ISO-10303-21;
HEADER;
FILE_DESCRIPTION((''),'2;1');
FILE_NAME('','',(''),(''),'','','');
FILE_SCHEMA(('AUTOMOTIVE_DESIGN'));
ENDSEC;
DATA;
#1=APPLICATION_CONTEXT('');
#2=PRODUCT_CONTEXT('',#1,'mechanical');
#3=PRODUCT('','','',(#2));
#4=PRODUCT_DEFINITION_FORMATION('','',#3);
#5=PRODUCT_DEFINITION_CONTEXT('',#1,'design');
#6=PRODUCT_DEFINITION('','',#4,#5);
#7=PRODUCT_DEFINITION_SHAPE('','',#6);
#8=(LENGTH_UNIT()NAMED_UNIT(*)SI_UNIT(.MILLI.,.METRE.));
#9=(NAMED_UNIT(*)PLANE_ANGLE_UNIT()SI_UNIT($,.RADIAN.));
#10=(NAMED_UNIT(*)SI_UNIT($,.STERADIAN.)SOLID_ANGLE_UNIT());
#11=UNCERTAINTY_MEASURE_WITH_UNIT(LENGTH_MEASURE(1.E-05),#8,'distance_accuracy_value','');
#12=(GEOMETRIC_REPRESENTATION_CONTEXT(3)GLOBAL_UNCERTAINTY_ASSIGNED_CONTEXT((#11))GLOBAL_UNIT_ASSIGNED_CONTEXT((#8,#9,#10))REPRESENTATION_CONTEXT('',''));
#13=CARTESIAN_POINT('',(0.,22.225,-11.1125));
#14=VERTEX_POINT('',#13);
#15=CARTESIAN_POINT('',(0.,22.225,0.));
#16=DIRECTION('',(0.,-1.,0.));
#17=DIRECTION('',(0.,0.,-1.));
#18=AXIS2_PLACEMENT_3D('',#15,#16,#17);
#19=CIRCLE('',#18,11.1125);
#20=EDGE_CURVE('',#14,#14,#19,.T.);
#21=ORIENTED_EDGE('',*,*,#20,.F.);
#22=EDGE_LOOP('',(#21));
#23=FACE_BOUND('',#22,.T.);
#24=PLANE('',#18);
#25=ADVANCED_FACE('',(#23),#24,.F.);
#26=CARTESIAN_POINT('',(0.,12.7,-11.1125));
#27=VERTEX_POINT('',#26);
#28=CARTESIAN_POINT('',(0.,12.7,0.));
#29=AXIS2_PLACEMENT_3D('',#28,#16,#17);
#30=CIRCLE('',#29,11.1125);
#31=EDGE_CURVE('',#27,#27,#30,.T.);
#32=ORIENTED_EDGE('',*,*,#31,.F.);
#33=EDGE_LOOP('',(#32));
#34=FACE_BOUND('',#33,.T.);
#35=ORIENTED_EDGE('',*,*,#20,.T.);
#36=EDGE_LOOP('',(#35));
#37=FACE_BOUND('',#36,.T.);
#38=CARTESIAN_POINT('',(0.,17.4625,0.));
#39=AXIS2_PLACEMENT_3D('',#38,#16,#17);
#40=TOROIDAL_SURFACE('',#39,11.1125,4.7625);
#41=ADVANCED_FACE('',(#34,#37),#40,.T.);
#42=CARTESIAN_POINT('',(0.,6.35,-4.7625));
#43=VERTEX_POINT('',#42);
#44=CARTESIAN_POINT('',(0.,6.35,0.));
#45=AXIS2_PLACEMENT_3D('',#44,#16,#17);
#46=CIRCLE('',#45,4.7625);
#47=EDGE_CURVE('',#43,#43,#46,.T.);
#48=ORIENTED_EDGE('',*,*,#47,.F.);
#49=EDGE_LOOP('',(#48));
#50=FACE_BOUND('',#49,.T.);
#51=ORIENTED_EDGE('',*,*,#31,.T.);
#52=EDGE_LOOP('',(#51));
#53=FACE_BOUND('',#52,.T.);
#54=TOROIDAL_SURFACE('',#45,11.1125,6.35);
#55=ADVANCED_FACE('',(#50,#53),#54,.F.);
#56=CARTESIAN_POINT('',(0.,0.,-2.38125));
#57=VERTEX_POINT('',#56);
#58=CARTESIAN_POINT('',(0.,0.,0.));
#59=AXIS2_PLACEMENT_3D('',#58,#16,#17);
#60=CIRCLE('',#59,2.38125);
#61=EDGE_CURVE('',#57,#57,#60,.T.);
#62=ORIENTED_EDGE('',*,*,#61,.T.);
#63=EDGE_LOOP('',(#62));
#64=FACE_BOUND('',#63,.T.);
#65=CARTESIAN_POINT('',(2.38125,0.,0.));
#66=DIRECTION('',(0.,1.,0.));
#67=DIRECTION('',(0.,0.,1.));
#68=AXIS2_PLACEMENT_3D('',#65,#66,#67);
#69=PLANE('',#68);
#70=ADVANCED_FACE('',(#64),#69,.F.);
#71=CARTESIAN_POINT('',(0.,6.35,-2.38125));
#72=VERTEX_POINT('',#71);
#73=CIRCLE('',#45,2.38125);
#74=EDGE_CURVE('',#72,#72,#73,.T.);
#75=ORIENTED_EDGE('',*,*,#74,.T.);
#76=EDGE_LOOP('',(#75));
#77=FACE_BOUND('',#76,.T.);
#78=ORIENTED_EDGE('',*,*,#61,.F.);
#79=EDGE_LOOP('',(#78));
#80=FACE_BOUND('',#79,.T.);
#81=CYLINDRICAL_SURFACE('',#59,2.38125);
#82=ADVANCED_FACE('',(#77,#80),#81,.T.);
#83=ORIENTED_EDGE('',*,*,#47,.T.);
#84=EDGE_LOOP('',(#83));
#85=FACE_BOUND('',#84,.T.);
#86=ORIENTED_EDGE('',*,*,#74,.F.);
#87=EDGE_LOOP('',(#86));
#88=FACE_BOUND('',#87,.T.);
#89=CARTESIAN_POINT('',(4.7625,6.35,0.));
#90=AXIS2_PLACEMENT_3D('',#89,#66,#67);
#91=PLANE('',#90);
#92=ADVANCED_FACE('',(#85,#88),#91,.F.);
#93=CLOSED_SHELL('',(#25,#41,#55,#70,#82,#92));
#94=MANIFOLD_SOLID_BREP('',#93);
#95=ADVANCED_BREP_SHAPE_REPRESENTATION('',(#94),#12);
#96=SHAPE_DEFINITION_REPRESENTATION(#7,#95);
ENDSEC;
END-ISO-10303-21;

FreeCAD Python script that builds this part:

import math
import FreeCAD as App
import Part
import Sketcher
from FreeCAD import Vector
Q = App.Units.Quantity

doc = App.newDocument("Part")
body = doc.addObject("PartDesign::Body", "Body")

sketch1 = doc.addObject("Sketcher::SketchObject", "Sketch")
body.addObject(sketch1)
sketch1.AttachmentSupport = (doc.XY_Plane, [""])
sketch1.MapMode = "FlatFace"
sketch1.addGeometry(Part.LineSegment(Vector(0, 22.2, 0), Vector(0, 0, 0)), False)
sketch1.addGeometry(Part.LineSegment(Vector(0, 0, 0), Vector(2.4, 0, 0)), False)
sketch1.addGeometry(Part.LineSegment(Vector(2.4, 0, 0), Vector(2.4, 6.3, 0)), False)
sketch1.addGeometry(Part.LineSegment(Vector(2.4, 6.3, 0), Vector(4.8, 6.3, 0)), False)
sketch1.addGeometry(Part.ArcOfCircle(Part.Circle(Vector(11.1, 6.4, 0), Vector(0, 0, 1), 6.3), math.radians(90), math.radians(180)), False)
sketch1.addGeometry(Part.ArcOfCircle(Part.Circle(Vector(11.1, 17.5, 0), Vector(0, 0, 1), 4.8), math.radians(-90), math.radians(90)), False)
sketch1.addGeometry(Part.LineSegment(Vector(11.1, 22.2, 0), Vector(0, 22.2, 0)), False)
sketch1.addConstraint(Sketcher.Constraint("Coincident", 0, 2, 1, 1))
sketch1.addConstraint(Sketcher.Constraint("Coincident", 1, 2, 2, 1))
sketch1.addConstraint(Sketcher.Constraint("Coincident", 2, 2, 3, 1))
sketch1.addConstraint(Sketcher.Constraint("Coincident", 3, 2, 4, 2))
sketch1.addConstraint(Sketcher.Constraint("Tangent", 4, 1, 5, 1))
sketch1.addConstraint(Sketcher.Constraint("Tangent", 5, 2, 6, 1))
sketch1.addConstraint(Sketcher.Constraint("Coincident", 6, 2, 0, 1))
sketch1.addConstraint(Sketcher.Constraint("Vertical", 0))
sketch1.addConstraint(Sketcher.Constraint("Horizontal", 1))
sketch1.addConstraint(Sketcher.Constraint("Vertical", 2))
sketch1.addConstraint(Sketcher.Constraint("Horizontal", 3))
sketch1.addConstraint(Sketcher.Constraint("Horizontal", 6))
sketch1.addConstraint(Sketcher.Constraint("Coincident", 0, 2, -1, 1))
sketch1.addConstraint(Sketcher.Constraint("Horizontal", 4, 3, 2, 2))
sketch1.addConstraint(Sketcher.Constraint("Vertical", 4, 3, 5, 3))
sketch1.addConstraint(Sketcher.Constraint("Equal", 1, 3))
sketch1.addConstraint(Sketcher.Constraint("Radius", 4, Q("0.25 in")))
sketch1.addConstraint(Sketcher.Constraint("Radius", 5, Q("0.1875 in")))
sketch1.addConstraint(Sketcher.Constraint("DistanceY", 2, 1, 2, 2, Q("0.25 in")))
sketch1.addConstraint(Sketcher.Constraint("DistanceX", 1, 1, 1, 2, Q("0.09375 in")))
revolution = doc.addObject("PartDesign::Revolution", "Revolution")
body.addObject(revolution)
revolution.Profile = sketch1
revolution.ReferenceAxis = (sketch1, ["V_Axis"])
revolution.Angle = 360

doc.recompute()
